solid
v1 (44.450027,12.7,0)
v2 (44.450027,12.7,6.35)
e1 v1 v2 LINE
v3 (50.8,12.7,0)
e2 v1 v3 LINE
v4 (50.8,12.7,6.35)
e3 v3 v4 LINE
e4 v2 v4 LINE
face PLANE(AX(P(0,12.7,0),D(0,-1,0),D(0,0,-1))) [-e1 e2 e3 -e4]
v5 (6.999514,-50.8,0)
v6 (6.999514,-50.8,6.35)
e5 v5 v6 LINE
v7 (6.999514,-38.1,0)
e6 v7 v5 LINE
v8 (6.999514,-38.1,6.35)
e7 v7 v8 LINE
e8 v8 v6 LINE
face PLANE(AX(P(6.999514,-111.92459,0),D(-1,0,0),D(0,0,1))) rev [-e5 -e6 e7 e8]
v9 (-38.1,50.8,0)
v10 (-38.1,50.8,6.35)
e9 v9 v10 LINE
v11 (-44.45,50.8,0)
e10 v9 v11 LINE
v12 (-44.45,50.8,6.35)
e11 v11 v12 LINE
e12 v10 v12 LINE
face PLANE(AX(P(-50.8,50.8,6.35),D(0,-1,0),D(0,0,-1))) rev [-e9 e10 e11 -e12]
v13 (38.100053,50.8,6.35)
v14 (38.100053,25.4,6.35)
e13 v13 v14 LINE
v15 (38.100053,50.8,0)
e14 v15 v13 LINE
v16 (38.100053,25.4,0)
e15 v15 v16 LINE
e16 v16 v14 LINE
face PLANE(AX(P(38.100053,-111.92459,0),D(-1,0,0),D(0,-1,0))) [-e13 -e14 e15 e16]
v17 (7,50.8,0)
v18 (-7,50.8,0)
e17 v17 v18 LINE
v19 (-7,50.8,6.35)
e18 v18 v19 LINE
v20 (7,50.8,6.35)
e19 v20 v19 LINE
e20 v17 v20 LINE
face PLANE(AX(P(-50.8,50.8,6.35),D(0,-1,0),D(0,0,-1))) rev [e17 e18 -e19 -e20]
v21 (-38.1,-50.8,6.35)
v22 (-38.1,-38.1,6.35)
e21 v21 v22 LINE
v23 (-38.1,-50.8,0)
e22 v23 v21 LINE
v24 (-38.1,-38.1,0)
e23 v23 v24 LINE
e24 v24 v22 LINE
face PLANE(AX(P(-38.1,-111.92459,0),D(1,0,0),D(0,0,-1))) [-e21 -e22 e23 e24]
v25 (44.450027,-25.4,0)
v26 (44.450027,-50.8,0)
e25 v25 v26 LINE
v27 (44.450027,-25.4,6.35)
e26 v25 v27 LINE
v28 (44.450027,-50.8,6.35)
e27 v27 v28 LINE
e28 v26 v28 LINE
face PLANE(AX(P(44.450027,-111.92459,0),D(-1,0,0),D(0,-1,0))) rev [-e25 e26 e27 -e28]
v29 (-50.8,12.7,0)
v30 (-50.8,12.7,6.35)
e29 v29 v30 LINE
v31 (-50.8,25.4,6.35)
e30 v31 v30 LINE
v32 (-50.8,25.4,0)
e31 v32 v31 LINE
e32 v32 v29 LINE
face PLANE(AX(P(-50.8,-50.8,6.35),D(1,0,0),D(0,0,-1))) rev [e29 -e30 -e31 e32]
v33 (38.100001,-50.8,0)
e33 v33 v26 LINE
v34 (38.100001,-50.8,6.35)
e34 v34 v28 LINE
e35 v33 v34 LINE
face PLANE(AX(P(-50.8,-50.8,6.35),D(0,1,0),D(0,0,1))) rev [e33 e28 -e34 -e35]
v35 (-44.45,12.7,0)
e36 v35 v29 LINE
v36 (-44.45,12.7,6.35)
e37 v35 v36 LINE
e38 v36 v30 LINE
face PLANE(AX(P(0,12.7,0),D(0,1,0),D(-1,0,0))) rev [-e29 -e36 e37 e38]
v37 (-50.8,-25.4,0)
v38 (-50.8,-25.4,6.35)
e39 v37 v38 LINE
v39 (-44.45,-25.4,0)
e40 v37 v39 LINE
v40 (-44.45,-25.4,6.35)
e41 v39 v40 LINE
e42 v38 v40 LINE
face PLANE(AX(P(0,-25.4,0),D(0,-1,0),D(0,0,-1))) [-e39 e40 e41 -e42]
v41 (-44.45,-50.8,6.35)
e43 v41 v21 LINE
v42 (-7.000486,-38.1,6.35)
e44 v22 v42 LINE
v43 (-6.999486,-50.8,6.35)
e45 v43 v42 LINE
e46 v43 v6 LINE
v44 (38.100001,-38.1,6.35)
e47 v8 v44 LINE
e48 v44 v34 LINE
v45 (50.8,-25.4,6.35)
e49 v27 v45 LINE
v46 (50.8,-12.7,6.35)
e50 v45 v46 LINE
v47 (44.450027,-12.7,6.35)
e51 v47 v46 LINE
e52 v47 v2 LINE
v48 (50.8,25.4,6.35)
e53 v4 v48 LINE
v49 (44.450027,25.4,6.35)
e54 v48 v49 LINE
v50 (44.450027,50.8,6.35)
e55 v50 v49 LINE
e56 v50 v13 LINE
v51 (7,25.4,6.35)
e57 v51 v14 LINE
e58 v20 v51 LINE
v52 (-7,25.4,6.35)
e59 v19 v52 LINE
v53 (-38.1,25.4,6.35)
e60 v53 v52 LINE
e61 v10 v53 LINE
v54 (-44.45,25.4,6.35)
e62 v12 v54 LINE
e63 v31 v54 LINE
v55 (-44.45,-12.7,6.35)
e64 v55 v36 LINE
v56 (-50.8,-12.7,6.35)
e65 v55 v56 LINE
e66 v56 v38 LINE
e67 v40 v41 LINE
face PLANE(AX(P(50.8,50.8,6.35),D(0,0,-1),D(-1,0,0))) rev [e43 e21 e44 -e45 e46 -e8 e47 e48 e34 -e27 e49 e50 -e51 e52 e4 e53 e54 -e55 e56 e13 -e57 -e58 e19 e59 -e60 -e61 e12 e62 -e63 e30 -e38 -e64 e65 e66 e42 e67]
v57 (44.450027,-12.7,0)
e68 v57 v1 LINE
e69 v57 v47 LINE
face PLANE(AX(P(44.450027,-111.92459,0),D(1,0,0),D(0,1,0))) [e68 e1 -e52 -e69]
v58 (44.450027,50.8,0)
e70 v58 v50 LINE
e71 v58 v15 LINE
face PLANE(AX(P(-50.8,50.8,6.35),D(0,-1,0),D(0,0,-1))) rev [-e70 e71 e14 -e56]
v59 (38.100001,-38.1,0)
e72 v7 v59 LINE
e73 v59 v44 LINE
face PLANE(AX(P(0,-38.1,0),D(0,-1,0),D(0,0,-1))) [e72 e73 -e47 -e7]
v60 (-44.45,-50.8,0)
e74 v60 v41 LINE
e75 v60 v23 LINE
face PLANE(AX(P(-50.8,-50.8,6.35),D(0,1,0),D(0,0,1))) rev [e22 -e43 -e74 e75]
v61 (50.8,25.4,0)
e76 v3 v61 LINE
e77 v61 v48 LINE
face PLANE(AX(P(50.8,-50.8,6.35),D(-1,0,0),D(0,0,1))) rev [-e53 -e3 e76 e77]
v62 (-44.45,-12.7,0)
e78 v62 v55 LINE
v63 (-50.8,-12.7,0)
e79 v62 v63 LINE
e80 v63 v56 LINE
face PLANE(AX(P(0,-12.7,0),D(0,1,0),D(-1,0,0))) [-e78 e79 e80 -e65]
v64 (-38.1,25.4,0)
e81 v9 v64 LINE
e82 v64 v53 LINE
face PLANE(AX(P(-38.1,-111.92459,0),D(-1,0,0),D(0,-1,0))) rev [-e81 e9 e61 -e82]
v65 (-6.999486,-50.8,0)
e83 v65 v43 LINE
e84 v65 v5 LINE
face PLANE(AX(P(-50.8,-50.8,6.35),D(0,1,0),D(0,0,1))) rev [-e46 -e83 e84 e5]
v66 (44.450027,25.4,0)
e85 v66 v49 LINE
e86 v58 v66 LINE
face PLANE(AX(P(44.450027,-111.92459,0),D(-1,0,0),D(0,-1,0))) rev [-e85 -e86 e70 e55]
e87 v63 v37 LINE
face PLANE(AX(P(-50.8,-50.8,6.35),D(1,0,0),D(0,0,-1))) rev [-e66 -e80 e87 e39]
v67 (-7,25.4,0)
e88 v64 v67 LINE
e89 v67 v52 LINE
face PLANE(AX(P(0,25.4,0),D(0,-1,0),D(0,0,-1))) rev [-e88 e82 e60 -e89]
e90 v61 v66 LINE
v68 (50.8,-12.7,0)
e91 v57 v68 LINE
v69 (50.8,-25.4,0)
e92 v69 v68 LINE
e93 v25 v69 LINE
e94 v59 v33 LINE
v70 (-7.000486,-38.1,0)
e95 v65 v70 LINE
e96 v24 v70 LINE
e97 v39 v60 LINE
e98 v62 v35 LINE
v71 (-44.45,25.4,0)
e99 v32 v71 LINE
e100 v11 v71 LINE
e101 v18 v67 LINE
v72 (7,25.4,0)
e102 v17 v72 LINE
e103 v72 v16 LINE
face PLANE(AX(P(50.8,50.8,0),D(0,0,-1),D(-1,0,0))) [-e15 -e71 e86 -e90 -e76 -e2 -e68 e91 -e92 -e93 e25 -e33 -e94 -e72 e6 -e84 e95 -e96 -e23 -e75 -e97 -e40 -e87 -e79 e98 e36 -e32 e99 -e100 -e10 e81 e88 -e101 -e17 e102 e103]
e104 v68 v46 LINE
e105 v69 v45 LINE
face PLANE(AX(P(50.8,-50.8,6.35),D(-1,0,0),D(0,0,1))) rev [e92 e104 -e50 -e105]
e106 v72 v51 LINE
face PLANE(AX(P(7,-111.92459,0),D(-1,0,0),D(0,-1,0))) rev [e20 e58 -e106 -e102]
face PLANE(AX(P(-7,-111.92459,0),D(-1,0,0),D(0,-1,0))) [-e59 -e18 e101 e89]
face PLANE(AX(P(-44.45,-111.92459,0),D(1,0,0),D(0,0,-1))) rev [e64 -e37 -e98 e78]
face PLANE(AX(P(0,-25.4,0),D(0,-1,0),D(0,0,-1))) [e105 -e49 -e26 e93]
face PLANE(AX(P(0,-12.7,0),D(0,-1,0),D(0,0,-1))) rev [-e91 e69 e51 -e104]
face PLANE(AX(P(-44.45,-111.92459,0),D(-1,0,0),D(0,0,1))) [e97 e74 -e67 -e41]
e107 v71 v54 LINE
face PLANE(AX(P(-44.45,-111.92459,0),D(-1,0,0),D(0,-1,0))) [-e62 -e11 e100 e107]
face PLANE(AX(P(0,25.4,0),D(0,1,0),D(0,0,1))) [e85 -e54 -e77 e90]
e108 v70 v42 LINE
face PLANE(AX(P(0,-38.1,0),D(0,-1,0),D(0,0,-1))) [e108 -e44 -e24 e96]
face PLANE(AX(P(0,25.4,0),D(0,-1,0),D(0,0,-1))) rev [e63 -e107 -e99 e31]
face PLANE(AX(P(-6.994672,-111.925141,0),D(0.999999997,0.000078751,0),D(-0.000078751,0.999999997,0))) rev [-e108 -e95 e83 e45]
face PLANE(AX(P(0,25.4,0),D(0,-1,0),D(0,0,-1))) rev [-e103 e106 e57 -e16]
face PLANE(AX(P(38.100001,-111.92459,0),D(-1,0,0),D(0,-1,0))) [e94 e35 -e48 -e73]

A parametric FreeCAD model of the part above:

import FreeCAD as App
import Part
import Sketcher

V = App.Vector
Q = App.Units.Quantity

doc = App.newDocument("Part")
body = doc.addObject("PartDesign::Body", "Body")

# Sketch on XY plane
sketch1 = body.newObject("Sketcher::SketchObject", "Sketch")
sketch1.AttachmentSupport = (doc.getObject("XY_Plane"), [""])
sketch1.MapMode = "FlatFace"
sketch1.addGeometry([
    Part.LineSegment(V(-51, 51, 0), V(-51, -51, 0)),
    Part.LineSegment(V(-51, -51, 0), V(51, -51, 0)),
    Part.LineSegment(V(51, -51, 0), V(51, 51, 0)),
    Part.LineSegment(V(51, 51, 0), V(-51, 51, 0)),
], False)
sketch1.addConstraint([
    Sketcher.Constraint("Coincident", 0, 2, 1, 1),
    Sketcher.Constraint("Coincident", 1, 2, 2, 1),
    Sketcher.Constraint("Coincident", 2, 2, 3, 1),
    Sketcher.Constraint("Coincident", 3, 2, 0, 1),
    Sketcher.Constraint("Vertical", 0),
    Sketcher.Constraint("Horizontal", 1),
    Sketcher.Constraint("Vertical", 2),
    Sketcher.Constraint("Horizontal", 3),
    Sketcher.Constraint("Symmetric", 0, 2, 2, 2, -1, 1),
    Sketcher.Constraint("Equal", 3, 0),
    Sketcher.Constraint("DistanceX", 1, 1, 1, 2, Q("4 in")),
])
pad1 = body.newObject("PartDesign::Pad", "Pad")
pad1.Profile = sketch1
pad1.Length = Q("0.25 in")

# Sketch on XY plane
sketch2 = body.newObject("Sketcher::SketchObject", "Sketch001")
sketch2.AttachmentSupport = (doc.getObject("XY_Plane"), [""])
sketch2.MapMode = "FlatFace"
sketch2.AttachmentOffset = App.Placement(V(0, 0, 0.25 * 25.4), App.Rotation())
sketch2.addGeometry([
    Part.LineSegment(V(-51, 51, 0), V(-51, 25, 0)),  # 0
    Part.LineSegment(V(-51, 25, 0), V(-44, 25, 0)),  # 1
    Part.LineSegment(V(-44, 25, 0), V(-44, 51, 0)),  # 2
    Part.LineSegment(V(-44, 51, 0), V(-51, 51, 0)),  # 3
    Part.LineSegment(V(-38, 51, 0), V(-38, 25, 0)),  # 4
    Part.LineSegment(V(-38, 25, 0), V(-7, 25, 0)),  # 5
    Part.LineSegment(V(-7, 25, 0), V(-7, 51, 0)),  # 6
    Part.LineSegment(V(-7, 51, 0), V(-38, 51, 0)),  # 7
    Part.LineSegment(V(-51, 13, 0), V(-51, -13, 0)),  # 8
    Part.LineSegment(V(-51, -13, 0), V(-44, -13, 0)),  # 9
    Part.LineSegment(V(-44, -13, 0), V(-44, 13, 0)),  # 10
    Part.LineSegment(V(-44, 13, 0), V(-51, 13, 0)),  # 11
    Part.LineSegment(V(7, 51, 0), V(7, 25, 0)),  # 12
    Part.LineSegment(V(7, 25, 0), V(38, 25, 0)),  # 13
    Part.LineSegment(V(38, 25, 0), V(38, 51, 0)),  # 14
    Part.LineSegment(V(38, 51, 0), V(7, 51, 0)),  # 15
    Part.LineSegment(V(-51, -25, 0), V(-51, -51, 0)),  # 16
    Part.LineSegment(V(-51, -51, 0), V(-44, -51, 0)),  # 17
    Part.LineSegment(V(-44, -51, 0), V(-44, -25, 0)),  # 18
    Part.LineSegment(V(-44, -25, 0), V(-51, -25, 0)),  # 19
    Part.LineSegment(V(44, 51, 0), V(44, 25, 0)),  # 20
    Part.LineSegment(V(44, 25, 0), V(51, 25, 0)),  # 21
    Part.LineSegment(V(51, 25, 0), V(51, 51, 0)),  # 22
    Part.LineSegment(V(51, 51, 0), V(44, 51, 0)),  # 23
    Part.LineSegment(V(44, 13, 0), V(44, -13, 0)),  # 24
    Part.LineSegment(V(44, -13, 0), V(51, -13, 0)),  # 25
    Part.LineSegment(V(51, -13, 0), V(51, 13, 0)),  # 26
    Part.LineSegment(V(51, 13, 0), V(44, 13, 0)),  # 27
    Part.LineSegment(V(-7, -38, 0), V(-38, -38, 0)),  # 28
    Part.LineSegment(V(-38, -38, 0), V(-38, -51, 0)),  # 29
    Part.LineSegment(V(-38, -51, 0), V(-7, -51, 0)),  # 30
    Part.LineSegment(V(-7, -51, 0), V(-7, -38, 0)),  # 31
    Part.LineSegment(V(44, -25, 0), V(44, -51, 0)),  # 32
    Part.LineSegment(V(44, -51, 0), V(51, -51, 0)),  # 33
    Part.LineSegment(V(51, -51, 0), V(51, -25, 0)),  # 34
    Part.LineSegment(V(51, -25, 0), V(44, -25, 0)),  # 35
    Part.LineSegment(V(7, -38, 0), V(7, -51, 0)),  # 36
    Part.LineSegment(V(7, -51, 0), V(38, -51, 0)),  # 37
    Part.LineSegment(V(38, -51, 0), V(38, -38, 0)),  # 38
    Part.LineSegment(V(38, -38, 0), V(7, -38, 0)),  # 39
], False)
sketch2.addConstraint([
    Sketcher.Constraint("Coincident", 0, 2, 1, 1),
    Sketcher.Constraint("Coincident", 1, 2, 2, 1),
    Sketcher.Constraint("Coincident", 2, 2, 3, 1),
    Sketcher.Constraint("Coincident", 3, 2, 0, 1),
    Sketcher.Constraint("Coincident", 4, 2, 5, 1),
    Sketcher.Constraint("Coincident", 5, 2, 6, 1),
    Sketcher.Constraint("Coincident", 6, 2, 7, 1),
    Sketcher.Constraint("Coincident", 7, 2, 4, 1),
    Sketcher.Constraint("Coincident", 8, 2, 9, 1),
    Sketcher.Constraint("Coincident", 9, 2, 10, 1),
    Sketcher.Constraint("Coincident", 10, 2, 11, 1),
    Sketcher.Constraint("Coincident", 11, 2, 8, 1),
    Sketcher.Constraint("Coincident", 12, 2, 13, 1),
    Sketcher.Constraint("Coincident", 13, 2, 14, 1),
    Sketcher.Constraint("Coincident", 14, 2, 15, 1),
    Sketcher.Constraint("Coincident", 15, 2, 12, 1),
    Sketcher.Constraint("Coincident", 16, 2, 17, 1),
    Sketcher.Constraint("Coincident", 17, 2, 18, 1),
    Sketcher.Constraint("Coincident", 18, 2, 19, 1),
    Sketcher.Constraint("Coincident", 19, 2, 16, 1),
    Sketcher.Constraint("Coincident", 20, 2, 21, 1),
    Sketcher.Constraint("Coincident", 21, 2, 22, 1),
    Sketcher.Constraint("Coincident", 22, 2, 23, 1),
    Sketcher.Constraint("Coincident", 23, 2, 20, 1),
    Sketcher.Constraint("Coincident", 24, 2, 25, 1),
    Sketcher.Constraint("Coincident", 25, 2, 26, 1),
    Sketcher.Constraint("Coincident", 26, 2, 27, 1),
    Sketcher.Constraint("Coincident", 27, 2, 24, 1),
    Sketcher.Constraint("Coincident", 28, 2, 29, 1),
    Sketcher.Constraint("Coincident", 29, 2, 30, 1),
    Sketcher.Constraint("Coincident", 30, 2, 31, 1),
    Sketcher.Constraint("Coincident", 31, 2, 28, 1),
    Sketcher.Constraint("Coincident", 32, 2, 33, 1),
    Sketcher.Constraint("Coincident", 33, 2, 34, 1),
    Sketcher.Constraint("Coincident", 34, 2, 35, 1),
    Sketcher.Constraint("Coincident", 35, 2, 32, 1),
    Sketcher.Constraint("Coincident", 36, 2, 37, 1),
    Sketcher.Constraint("Coincident", 37, 2, 38, 1),
    Sketcher.Constraint("Coincident", 38, 2, 39, 1),
    Sketcher.Constraint("Coincident", 39, 2, 36, 1),
    Sketcher.Constraint("Vertical", 0),
    Sketcher.Constraint("Horizontal", 1),
    Sketcher.Constraint("Vertical", 2),
    Sketcher.Constraint("Horizontal", 3),
    Sketcher.Constraint("Vertical", 4),
    Sketcher.Constraint("Horizontal", 5),
    Sketcher.Constraint("Vertical", 6),
    Sketcher.Constraint("Horizontal", 7),
    Sketcher.Constraint("Vertical", 8),
    Sketcher.Constraint("Horizontal", 9),
    Sketcher.Constraint("Vertical", 10),
    Sketcher.Constraint("Horizontal", 11),
    Sketcher.Constraint("Vertical", 12),
    Sketcher.Constraint("Horizontal", 13),
    Sketcher.Constraint("Vertical", 14),
    Sketcher.Constraint("Horizontal", 15),
    Sketcher.Constraint("Vertical", 16),
    Sketcher.Constraint("Horizontal", 17),
    Sketcher.Constraint("Vertical", 18),
    Sketcher.Constraint("Horizontal", 19),
    Sketcher.Constraint("Vertical", 20),
    Sketcher.Constraint("Horizontal", 21),
    Sketcher.Constraint("Vertical", 22),
    Sketcher.Constraint("Horizontal", 23),
    Sketcher.Constraint("Vertical", 24),
    Sketcher.Constraint("Horizontal", 25),
    Sketcher.Constraint("Vertical", 26),
    Sketcher.Constraint("Horizontal", 27),
    Sketcher.Constraint("Horizontal", 28),
    Sketcher.Constraint("Vertical", 29),
    Sketcher.Constraint("Horizontal", 30),
    Sketcher.Constraint("Vertical", 32),
    Sketcher.Constraint("Horizontal", 33),
    Sketcher.Constraint("Vertical", 34),
    Sketcher.Constraint("Horizontal", 35),
    Sketcher.Constraint("Vertical", 36),
    Sketcher.Constraint("Horizontal", 37),
    Sketcher.Constraint("Vertical", 38),
    Sketcher.Constraint("Horizontal", 39),
    Sketcher.Constraint("Symmetric", 19, 2, 21, 2, -1, 1),
    Sketcher.Constraint("Symmetric", 11, 2, 25, 2, -1, 1),
    Sketcher.Constraint("Symmetric", 3, 2, 33, 2, -1, 1),
    Sketcher.Constraint("Symmetric", 7, 2, 37, 2, -1, 1),
    Sketcher.Constraint("Symmetric", 5, 2, 12, 2, -2),
    Sketcher.Constraint("Symmetric", 0, 2, 21, 2, -2),
    Sketcher.Constraint("Symmetric", 29, 2, 37, 2, -2),
    Sketcher.Constraint("Symmetric", 2, 2, 17, 2, -1),
    Sketcher.Constraint("Symmetric", 23, 2, 32, 2, -1),
    Sketcher.Constraint("Horizontal", 1, 2, 4, 2),
    Sketcher.Constraint("Horizontal", 3, 2, 6, 2),
    Sketcher.Constraint("Horizontal", 7, 2, 14, 2),
    Sketcher.Constraint("Horizontal", 9, 2, 24, 2),
    Sketcher.Constraint("Horizontal", 11, 2, 26, 2),
    Sketcher.Constraint("Horizontal", 19, 2, 34, 2),
    Sketcher.Constraint("Horizontal", 31, 2, 38, 2),
    Sketcher.Constraint("Vertical", 3, 2, 8, 2),
    Sketcher.Constraint("Vertical", 2, 2, 9, 2),
    Sketcher.Constraint("Vertical", 23, 2, 24, 2),
    Sketcher.Constraint("Equal", 6, 8),
    Sketcher.Constraint("DistanceY", 0, 2, 0, 1, Q("1 in")),
    Sketcher.Constraint("DistanceY", 29, 2, 29, 1, Q("0.5 in")),
    Sketcher.Constraint("DistanceX", 0, 2, -1, 1, Q("2 in")),
    Sketcher.Constraint("DistanceY", -1, 1, 0, 2, Q("1 in")),
    Sketcher.Constraint("DistanceX", 1, 1, 1, 2, Q("0.25 in")),
    Sketcher.Constraint("DistanceX", 4, 2, -1, 1, Q("1.5 in")),
    Sketcher.Constraint("DistanceX", 5, 1, 5, 2, Q("31.1 mm")),
    Sketcher.Constraint("DistanceX", 31, 2, 30, 2, Q("0.001 mm")),
    Sketcher.Constraint("DistanceX", 30, 2, 36, 2, Q("13.999 mm")),
    Sketcher.Constraint("DistanceX", 13, 1, 13, 2, Q("31.100053 mm")),
    Sketcher.Constraint("DistanceX", 21, 1, 21, 2, Q("6.349973 mm")),
    Sketcher.Constraint("DistanceX", 28, 2, 28, 1, Q("31.099514 mm")),
])
pocket1 = body.newObject("PartDesign::Pocket", "Pocket")
pocket1.Profile = sketch2
pocket1.Type = "ThroughAll"

doc.recompute()
